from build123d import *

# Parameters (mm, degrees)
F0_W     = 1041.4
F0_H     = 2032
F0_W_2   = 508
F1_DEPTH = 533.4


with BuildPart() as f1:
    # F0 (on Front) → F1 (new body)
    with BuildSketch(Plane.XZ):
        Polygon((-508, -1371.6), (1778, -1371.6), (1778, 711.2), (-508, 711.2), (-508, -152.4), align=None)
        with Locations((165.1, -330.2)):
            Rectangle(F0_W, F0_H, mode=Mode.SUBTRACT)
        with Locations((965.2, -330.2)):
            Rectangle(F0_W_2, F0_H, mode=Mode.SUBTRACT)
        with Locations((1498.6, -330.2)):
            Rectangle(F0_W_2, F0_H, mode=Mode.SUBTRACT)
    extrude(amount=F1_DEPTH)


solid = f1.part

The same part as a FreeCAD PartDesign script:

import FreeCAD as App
import Part
import Sketcher

V = App.Vector
Q = App.Units.Quantity


def add_polygon(sketch, points):
    """Adds a closed chain of lines whose ends are joined by coincident constraints."""
    first, n = sketch.GeometryCount, len(points)
    for a, b in zip(points, points[1:] + points[:1]):
        sketch.addGeometry(Part.LineSegment(App.Vector(*a, 0), App.Vector(*b, 0)), False)
    for i in range(n):
        sketch.addConstraint(Sketcher.Constraint("Coincident", first + i, 2, first + (i + 1) % n, 1))

doc = App.newDocument("Part")
body = doc.addObject("PartDesign::Body", "Body")

sketch1 = doc.addObject("Sketcher::SketchObject", "Sketch")
body.addObject(sketch1)
sketch1.AttachmentSupport = (doc.XZ_Plane, [""])
sketch1.MapMode = "FlatFace"
add_polygon(sketch1, [(-508, -1372), (1778, -1372), (1778, 711), (-508, 711)])
add_polygon(sketch1, [(686, -1346), (-356, -1346), (-356, 686), (686, 686)])
add_polygon(sketch1, [(1219, -1346), (711, -1346), (711, 686), (1219, 686)])
add_polygon(sketch1, [(1753, -1346), (1245, -1346), (1245, 686), (1753, 686)])
sketch1.addConstraint([
    Sketcher.Constraint("Horizontal", 0),
    Sketcher.Constraint("Vertical", 1),
    Sketcher.Constraint("Horizontal", 2),
    Sketcher.Constraint("Vertical", 3),
    Sketcher.Constraint("Horizontal", 4),
    Sketcher.Constraint("Vertical", 5),
    Sketcher.Constraint("Horizontal", 6),
    Sketcher.Constraint("Vertical", 7),
    Sketcher.Constraint("Horizontal", 8),
    Sketcher.Constraint("Vertical", 9),
    Sketcher.Constraint("Horizontal", 10),
    Sketcher.Constraint("Vertical", 11),
    Sketcher.Constraint("Horizontal", 12),
    Sketcher.Constraint("Vertical", 13),
    Sketcher.Constraint("Horizontal", 14),
    Sketcher.Constraint("Vertical", 15),
    Sketcher.Constraint("Horizontal", 7, 2, 8, 2),
    Sketcher.Constraint("Horizontal", 6, 2, 9, 2),
    Sketcher.Constraint("Horizontal", 11, 2, 12, 2),
    Sketcher.Constraint("Horizontal", 10, 2, 13, 2),
    Sketcher.Constraint("Equal", 10, 12),
    Sketcher.Constraint("DistanceX", 0, 1, 0, 2, Q("90 in")),
    Sketcher.Constraint("DistanceX", 4, 2, 4, 1, Q("41 in")),
    Sketcher.Constraint("DistanceX", 8, 2, 8, 1, Q("20 in")),
    Sketcher.Constraint("DistanceY", 1, 1, 1, 2, Q("82 in")),
    Sketcher.Constraint("DistanceY", 5, 1, 5, 2, Q("80 in")),
    Sketcher.Constraint("DistanceX", -1, 1, 0, 2, Q("70 in")),
    Sketcher.Constraint("DistanceY", 0, 2, -1, 1, Q("54 in")),
    Sketcher.Constraint("DistanceX", 4, 2, -1, 1, Q("14 in")),
    Sketcher.Constraint("DistanceY", 4, 2, -1, 1, Q("53 in")),
    Sketcher.Constraint("DistanceX", -1, 1, 8, 2, Q("28 in")),
    Sketcher.Constraint("DistanceX", -1, 1, 12, 2, Q("49 in")),
])
pad1 = doc.addObject("PartDesign::Pad", "Pad")
body.addObject(pad1)
pad1.Profile = sketch1
pad1.Length = Q("21 in")

doc.recompute()
